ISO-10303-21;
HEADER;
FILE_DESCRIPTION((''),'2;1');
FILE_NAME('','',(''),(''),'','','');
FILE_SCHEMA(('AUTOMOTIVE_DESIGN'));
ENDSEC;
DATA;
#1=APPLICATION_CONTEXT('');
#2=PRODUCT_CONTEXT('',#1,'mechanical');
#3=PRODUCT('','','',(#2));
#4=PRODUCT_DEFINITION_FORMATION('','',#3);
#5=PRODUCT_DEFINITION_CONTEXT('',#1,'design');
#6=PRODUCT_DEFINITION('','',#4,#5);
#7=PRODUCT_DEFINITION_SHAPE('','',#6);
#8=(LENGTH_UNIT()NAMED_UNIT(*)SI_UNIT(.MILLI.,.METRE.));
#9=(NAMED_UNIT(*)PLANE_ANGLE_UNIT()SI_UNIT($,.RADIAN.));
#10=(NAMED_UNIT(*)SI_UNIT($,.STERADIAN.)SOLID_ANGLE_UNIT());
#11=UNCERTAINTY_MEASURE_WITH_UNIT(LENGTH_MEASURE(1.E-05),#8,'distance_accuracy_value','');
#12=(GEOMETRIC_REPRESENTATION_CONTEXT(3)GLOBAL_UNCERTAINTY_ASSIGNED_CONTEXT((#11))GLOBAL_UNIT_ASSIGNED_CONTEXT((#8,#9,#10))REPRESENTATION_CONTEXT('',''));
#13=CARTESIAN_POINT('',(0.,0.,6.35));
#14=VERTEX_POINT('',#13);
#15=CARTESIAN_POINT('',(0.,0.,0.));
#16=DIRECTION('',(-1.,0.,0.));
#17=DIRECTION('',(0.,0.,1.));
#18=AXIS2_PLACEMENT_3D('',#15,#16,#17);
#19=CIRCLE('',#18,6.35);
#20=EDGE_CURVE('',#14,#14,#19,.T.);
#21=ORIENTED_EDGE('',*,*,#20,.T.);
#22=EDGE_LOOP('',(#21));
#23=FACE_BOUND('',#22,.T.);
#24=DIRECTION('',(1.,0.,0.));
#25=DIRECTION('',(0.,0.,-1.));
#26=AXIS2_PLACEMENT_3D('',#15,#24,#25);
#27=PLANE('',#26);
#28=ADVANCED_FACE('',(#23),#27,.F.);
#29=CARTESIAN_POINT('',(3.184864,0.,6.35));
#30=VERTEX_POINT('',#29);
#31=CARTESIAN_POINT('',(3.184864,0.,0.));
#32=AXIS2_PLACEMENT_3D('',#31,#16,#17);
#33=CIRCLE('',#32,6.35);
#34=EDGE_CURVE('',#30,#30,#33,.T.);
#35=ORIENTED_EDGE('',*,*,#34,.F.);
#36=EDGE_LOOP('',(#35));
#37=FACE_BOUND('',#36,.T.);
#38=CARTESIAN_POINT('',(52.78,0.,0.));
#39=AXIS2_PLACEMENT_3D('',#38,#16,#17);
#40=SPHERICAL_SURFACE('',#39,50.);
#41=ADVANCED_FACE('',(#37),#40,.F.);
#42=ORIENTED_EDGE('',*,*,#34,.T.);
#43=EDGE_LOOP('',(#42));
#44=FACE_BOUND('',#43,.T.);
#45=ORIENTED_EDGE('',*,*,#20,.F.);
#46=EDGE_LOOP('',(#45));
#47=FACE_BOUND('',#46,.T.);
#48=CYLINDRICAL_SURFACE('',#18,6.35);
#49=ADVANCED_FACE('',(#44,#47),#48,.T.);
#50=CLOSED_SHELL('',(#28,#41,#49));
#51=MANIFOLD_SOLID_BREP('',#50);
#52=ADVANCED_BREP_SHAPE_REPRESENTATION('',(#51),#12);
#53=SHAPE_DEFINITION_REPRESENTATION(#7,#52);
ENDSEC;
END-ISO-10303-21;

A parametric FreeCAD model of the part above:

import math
import FreeCAD as App
import Part
import Sketcher

doc = App.newDocument("Part")
params = doc.addObject("Spreadsheet::Sheet", "Params")
for row, (alias, value) in enumerate([
    ("sketch1_radius", "50 mm"),
    ("sketch1_width", "2.78 mm"),
    ("sketch1_height", "6.35 mm"),
    ("revolution_angle", "360 deg"),
], start=1):
    params.set(f"A{row}", alias)
    params.set(f"B{row}", "=" + value)
    params.setAlias(f"B{row}", alias)

body = doc.addObject("PartDesign::Body", "Body")

# Sketch on XZ plane
sketch1 = body.newObject("Sketcher::SketchObject", "Sketch")
sketch1.AttachmentSupport = (doc.getObject("XZ_Plane"), [""])
sketch1.MapMode = "FlatFace"
sketch1.addGeometry([
    Part.LineSegment(App.Vector(0, 0, 0), App.Vector(2.8, 0, 0)),
    Part.ArcOfCircle(Part.Circle(App.Vector(52.8, 0, 0), App.Vector(0, 0, 1), 50), math.radians(180), math.radians(187.3)),
    Part.LineSegment(App.Vector(3.2, -6.3, 0), App.Vector(0, -6.3, 0)),
    Part.LineSegment(App.Vector(0, -6.3, 0), App.Vector(0, 0, 0)),
], False)
sketch1.addConstraint([
    Sketcher.Constraint("Coincident", 0, 2, 1, 1),
    Sketcher.Constraint("Coincident", 1, 2, 2, 1),
    Sketcher.Constraint("Coincident", 2, 2, 3, 1),
    Sketcher.Constraint("Coincident", 3, 2, 0, 1),
    Sketcher.Constraint("Horizontal", 0),
    Sketcher.Constraint("Horizontal", 2),
    Sketcher.Constraint("Vertical", 3),
    Sketcher.Constraint("Coincident", 3, 2, -1, 1),
    Sketcher.Constraint("PointOnObject", 1, 3, -1),
    Sketcher.Constraint("Radius", 1, 50.0),
    Sketcher.Constraint("DistanceX", 0, 1, 0, 2, 2.78),
    Sketcher.Constraint("DistanceY", 3, 1, 3, 2, 6.35),
])
sketch1.setExpression("Constraints[9]", "Params.sketch1_radius")
sketch1.setExpression("Constraints[10]", "Params.sketch1_width")
sketch1.setExpression("Constraints[11]", "Params.sketch1_height")
revolution = body.newObject("PartDesign::Revolution", "Revolution")
revolution.Profile = sketch1
revolution.ReferenceAxis = (sketch1, ["H_Axis"])
revolution.setExpression("Angle", "Params.revolution_angle")

doc.recompute()
